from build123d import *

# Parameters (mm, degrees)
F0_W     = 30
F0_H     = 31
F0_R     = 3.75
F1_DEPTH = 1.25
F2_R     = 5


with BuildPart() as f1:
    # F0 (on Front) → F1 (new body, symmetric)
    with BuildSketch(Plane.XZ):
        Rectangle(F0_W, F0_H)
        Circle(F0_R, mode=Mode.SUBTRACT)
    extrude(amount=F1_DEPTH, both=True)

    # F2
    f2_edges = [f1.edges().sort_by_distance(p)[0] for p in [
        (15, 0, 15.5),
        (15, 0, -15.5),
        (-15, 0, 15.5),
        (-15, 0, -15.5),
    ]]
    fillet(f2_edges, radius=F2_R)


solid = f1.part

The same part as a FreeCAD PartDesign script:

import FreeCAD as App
import Part
import Sketcher


def edges_at(feature, points):
    """Names of the edges that pass closest to the given points."""
    edges = feature.Shape.Edges
    near = lambda p: min(range(len(edges)), key=lambda i: edges[i].distToShape(Part.Vertex(*p))[0])
    return sorted({f"Edge{near(p) + 1}" for p in points})

doc = App.newDocument("Part")
body = doc.addObject("PartDesign::Body", "Body")

sketch1 = doc.addObject("Sketcher::SketchObject", "Sketch")
body.addObject(sketch1)
sketch1.AttachmentSupport = (doc.XZ_Plane, [""])
sketch1.MapMode = "FlatFace"
sketch1.addGeometry(Part.LineSegment(App.Vector(-15, 15.5, 0), App.Vector(-15, -15.5, 0)), False)
sketch1.addGeometry(Part.LineSegment(App.Vector(-15, -15.5, 0), App.Vector(15, -15.5, 0)), False)
sketch1.addGeometry(Part.LineSegment(App.Vector(15, -15.5, 0), App.Vector(15, 15.5, 0)), False)
sketch1.addGeometry(Part.LineSegment(App.Vector(15, 15.5, 0), App.Vector(-15, 15.5, 0)), False)
sketch1.addGeometry(Part.Circle(App.Vector(0, 0, 0), App.Vector(0, 0, 1), 3.8), False)
sketch1.addConstraint(Sketcher.Constraint("Coincident", 0, 2, 1, 1))
sketch1.addConstraint(Sketcher.Constraint("Coincident", 1, 2, 2, 1))
sketch1.addConstraint(Sketcher.Constraint("Coincident", 2, 2, 3, 1))
sketch1.addConstraint(Sketcher.Constraint("Coincident", 3, 2, 0, 1))
sketch1.addConstraint(Sketcher.Constraint("Vertical", 0))
sketch1.addConstraint(Sketcher.Constraint("Horizontal", 1))
sketch1.addConstraint(Sketcher.Constraint("Vertical", 2))
sketch1.addConstraint(Sketcher.Constraint("Horizontal", 3))
sketch1.addConstraint(Sketcher.Constraint("Coincident", 4, 3, -1, 1))
sketch1.addConstraint(Sketcher.Constraint("Symmetric", 0, 2, 2, 2, -1, 1))
sketch1.addConstraint(Sketcher.Constraint("Diameter", 4, 7.5))
sketch1.addConstraint(Sketcher.Constraint("DistanceX", 1, 1, 1, 2, 30.0))
sketch1.addConstraint(Sketcher.Constraint("DistanceY", 0, 2, 0, 1, 31.0))
pad1 = doc.addObject("PartDesign::Pad", "Pad")
body.addObject(pad1)
pad1.Profile = sketch1
pad1.Length = 2.5
pad1.Midplane = True
doc.recompute()

fillet = doc.addObject("PartDesign::Fillet", "Fillet")
body.addObject(fillet)
fillet.Base = (pad1, edges_at(pad1, [
    (15, 0, 15.5),
    (15, 0, -15.5),
    (-15, 0, 15.5),
    (-15, 0, -15.5),
]))
fillet.Radius = 5

doc.recompute()
